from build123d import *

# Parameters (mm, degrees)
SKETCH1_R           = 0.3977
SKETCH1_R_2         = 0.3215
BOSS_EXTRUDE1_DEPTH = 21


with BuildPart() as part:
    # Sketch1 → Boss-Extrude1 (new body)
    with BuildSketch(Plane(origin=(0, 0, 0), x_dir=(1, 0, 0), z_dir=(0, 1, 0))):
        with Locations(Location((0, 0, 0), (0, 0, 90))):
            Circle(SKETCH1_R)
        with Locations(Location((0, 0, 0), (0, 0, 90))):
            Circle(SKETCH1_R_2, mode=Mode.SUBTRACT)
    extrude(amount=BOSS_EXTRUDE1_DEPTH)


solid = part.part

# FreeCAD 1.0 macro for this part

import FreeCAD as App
import Part
import Sketcher

V = App.Vector
Q = App.Units.Quantity

doc = App.newDocument("Part")
body = doc.addObject("PartDesign::Body", "Body")

# Sketch on XZ plane
sketch1 = body.newObject("Sketcher::SketchObject", "Sketch")
sketch1.AttachmentSupport = (doc.getObject("XZ_Plane"), [""])
sketch1.MapMode = "FlatFace"
sketch1.addGeometry(Part.Circle(V(0, 0, 0), V(0, 0, 1), 0.4), False)
sketch1.addGeometry(Part.Circle(V(0, 0, 0), V(0, 0, 1), 0.32), False)
sketch1.addConstraint(Sketcher.Constraint("Coincident", 0, 3, -1, 1))
sketch1.addConstraint(Sketcher.Constraint("Coincident", 1, 3, -1, 1))
sketch1.addConstraint(Sketcher.Constraint("Diameter", 1, Q("0.643 mm")))
sketch1.addConstraint(Sketcher.Constraint("Diameter", 0, Q("0.7954 mm")))
pad1 = body.newObject("PartDesign::Pad", "Pad")
pad1.Profile = sketch1
pad1.Length = 21
pad1.Reversed = True

doc.recompute()
